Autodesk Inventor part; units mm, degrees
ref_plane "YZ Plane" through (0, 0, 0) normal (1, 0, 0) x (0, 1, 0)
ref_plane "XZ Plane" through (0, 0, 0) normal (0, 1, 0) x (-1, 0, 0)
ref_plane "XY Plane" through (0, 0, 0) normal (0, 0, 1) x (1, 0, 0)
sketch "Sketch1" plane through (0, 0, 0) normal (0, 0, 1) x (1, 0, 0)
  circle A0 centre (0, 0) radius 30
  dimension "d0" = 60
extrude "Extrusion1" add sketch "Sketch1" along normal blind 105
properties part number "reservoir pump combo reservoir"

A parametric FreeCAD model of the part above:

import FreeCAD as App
import Part
import Sketcher

doc = App.newDocument("Part")
body = doc.addObject("PartDesign::Body", "Body")

# Sketch on XY plane
sketch1 = body.newObject("Sketcher::SketchObject", "Sketch")
sketch1.AttachmentSupport = (doc.getObject("XY_Plane"), [""])
sketch1.MapMode = "FlatFace"
sketch1.addGeometry(Part.Circle(App.Vector(0, 0, 0), App.Vector(0, 0, 1), 30), False)
sketch1.addConstraint(Sketcher.Constraint("Coincident", 0, 3, -1, 1))
sketch1.addConstraint(Sketcher.Constraint("Diameter", 0, 60.0))
pad1 = body.newObject("PartDesign::Pad", "Pad")
pad1.Profile = sketch1
pad1.Length = 105

doc.recompute()
